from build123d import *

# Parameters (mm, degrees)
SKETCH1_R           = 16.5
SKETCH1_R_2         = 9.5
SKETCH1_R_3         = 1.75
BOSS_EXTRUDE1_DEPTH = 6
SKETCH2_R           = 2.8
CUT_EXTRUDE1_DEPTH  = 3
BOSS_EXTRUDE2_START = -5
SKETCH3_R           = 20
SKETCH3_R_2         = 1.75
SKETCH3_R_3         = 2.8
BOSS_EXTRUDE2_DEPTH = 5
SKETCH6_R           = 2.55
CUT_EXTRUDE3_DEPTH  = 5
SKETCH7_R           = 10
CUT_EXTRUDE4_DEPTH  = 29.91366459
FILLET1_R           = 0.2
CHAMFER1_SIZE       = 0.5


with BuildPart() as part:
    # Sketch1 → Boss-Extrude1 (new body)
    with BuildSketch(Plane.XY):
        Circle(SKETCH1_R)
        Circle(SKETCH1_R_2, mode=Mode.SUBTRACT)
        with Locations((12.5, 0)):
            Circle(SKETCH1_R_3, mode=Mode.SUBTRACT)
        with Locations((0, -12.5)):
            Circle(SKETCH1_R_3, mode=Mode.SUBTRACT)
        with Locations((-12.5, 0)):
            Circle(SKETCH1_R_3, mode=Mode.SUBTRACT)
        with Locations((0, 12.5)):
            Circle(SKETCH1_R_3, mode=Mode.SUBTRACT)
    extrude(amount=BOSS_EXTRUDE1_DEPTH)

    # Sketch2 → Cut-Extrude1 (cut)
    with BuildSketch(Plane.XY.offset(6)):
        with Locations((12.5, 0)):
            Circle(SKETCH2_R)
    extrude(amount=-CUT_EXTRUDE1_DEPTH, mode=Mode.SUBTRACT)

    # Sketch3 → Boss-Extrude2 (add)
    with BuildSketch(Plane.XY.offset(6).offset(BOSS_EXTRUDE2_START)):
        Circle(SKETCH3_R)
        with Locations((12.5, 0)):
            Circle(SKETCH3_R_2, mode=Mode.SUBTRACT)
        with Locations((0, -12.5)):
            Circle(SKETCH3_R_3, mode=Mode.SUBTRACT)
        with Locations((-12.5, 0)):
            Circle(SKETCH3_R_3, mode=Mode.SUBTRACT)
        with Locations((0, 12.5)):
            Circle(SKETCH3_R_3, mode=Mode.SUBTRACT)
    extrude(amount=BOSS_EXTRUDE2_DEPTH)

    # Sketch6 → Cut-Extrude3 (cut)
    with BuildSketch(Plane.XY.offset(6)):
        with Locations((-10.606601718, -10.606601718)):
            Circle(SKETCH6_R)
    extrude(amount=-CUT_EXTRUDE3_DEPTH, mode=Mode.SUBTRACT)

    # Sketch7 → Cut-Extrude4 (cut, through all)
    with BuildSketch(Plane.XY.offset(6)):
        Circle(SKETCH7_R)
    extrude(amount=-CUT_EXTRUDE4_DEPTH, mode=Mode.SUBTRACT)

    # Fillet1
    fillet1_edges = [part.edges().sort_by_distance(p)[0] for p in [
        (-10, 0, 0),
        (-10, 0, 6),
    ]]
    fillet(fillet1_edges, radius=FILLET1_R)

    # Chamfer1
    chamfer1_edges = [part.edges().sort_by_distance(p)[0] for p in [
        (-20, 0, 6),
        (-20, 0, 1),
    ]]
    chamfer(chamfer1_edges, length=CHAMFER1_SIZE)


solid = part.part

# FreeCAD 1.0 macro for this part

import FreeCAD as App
import Part
import Sketcher
from FreeCAD import Vector


def edges_at(feature, points):
    """Names of the edges that pass closest to the given points."""
    edges = feature.Shape.Edges
    near = lambda p: min(range(len(edges)), key=lambda i: edges[i].distToShape(Part.Vertex(*p))[0])
    return sorted({f"Edge{near(p) + 1}" for p in points})

doc = App.newDocument("Part")
params = doc.addObject("Spreadsheet::Sheet", "Params")
for row, (alias, value) in enumerate([
    ("sketch1_diameter", "33 mm"),
    ("sketch1_diameter2", "19 mm"),
    ("sketch1_diameter3", "3.5 mm"),
    ("pad1_length", "6 mm"),
    ("sketch2_diameter", "5.6 mm"),
    ("pocket1_length", "3 mm"),
    ("sketch3_diameter", "40 mm"),
    ("sketch3_diameter2", "5.6 mm"),
    ("sketch3_diameter3", "3.5 mm"),
    ("pad2_length", "5 mm"),
    ("sketch4_diameter", "5.1 mm"),
    ("pocket2_length", "5 mm"),
    ("sketch5_diameter", "20 mm"),
    ("fillet_radius", "0.2 mm"),
    ("chamfer_size", "0.5 mm"),
], start=1):
    params.set(f"A{row}", alias)
    params.set(f"B{row}", "=" + value)
    params.setAlias(f"B{row}", alias)

body = doc.addObject("PartDesign::Body", "Body")

# Sketch on XY plane
sketch1 = body.newObject("Sketcher::SketchObject", "Sketch")
sketch1.AttachmentSupport = (doc.getObject("XY_Plane"), [""])
sketch1.MapMode = "FlatFace"
sketch1.addGeometry(Part.Circle(Vector(0, 0, 0), Vector(0, 0, 1), 16.5), False)
sketch1.addGeometry(Part.Circle(Vector(0, -12.5, 0), Vector(0, 0, 1), 1.75), False)
sketch1.addGeometry(Part.Circle(Vector(-12.5, 0, 0), Vector(0, 0, 1), 1.75), False)
sketch1.addGeometry(Part.Circle(Vector(0, 0, 0), Vector(0, 0, 1), 9.5), False)
sketch1.addGeometry(Part.Circle(Vector(12.5, 0, 0), Vector(0, 0, 1), 1.75), False)
sketch1.addGeometry(Part.Circle(Vector(0, 12.5, 0), Vector(0, 0, 1), 1.75), False)
sketch1.addConstraint(Sketcher.Constraint("Coincident", 0, 3, -1, 1))
sketch1.addConstraint(Sketcher.Constraint("Coincident", 3, 3, -1, 1))
sketch1.addConstraint(Sketcher.Constraint("Equal", 1, 2))
sketch1.addConstraint(Sketcher.Constraint("Equal", 2, 4))
sketch1.addConstraint(Sketcher.Constraint("Equal", 4, 5))
sketch1.addConstraint(Sketcher.Constraint("Symmetric", 2, 3, 4, 3, -1, 1))
sketch1.addConstraint(Sketcher.Constraint("Symmetric", 1, 3, 5, 3, -1, 1))
sketch1.addConstraint(Sketcher.Constraint("PointOnObject", 1, 3, -2))
sketch1.addConstraint(Sketcher.Constraint("PointOnObject", 2, 3, -1))
sketch1.addConstraint(Sketcher.Constraint("Diameter", 0, 33.0))
sketch1.addConstraint(Sketcher.Constraint("Diameter", 3, 19.0))
sketch1.addConstraint(Sketcher.Constraint("Diameter", 1, 3.5))
sketch1.addConstraint(Sketcher.Constraint("DistanceX", 2, 3, 4, 3, 25.0))
sketch1.addConstraint(Sketcher.Constraint("DistanceY", 1, 3, 5, 3, 25.0))
sketch1.setExpression("Constraints[9]", "Params.sketch1_diameter")
sketch1.setExpression("Constraints[10]", "Params.sketch1_diameter2")
sketch1.setExpression("Constraints[11]", "Params.sketch1_diameter3")
pad1 = body.newObject("PartDesign::Pad", "Pad")
pad1.Profile = sketch1
pad1.setExpression("Length", "Params.pad1_length")

# Sketch on XY plane
sketch2 = body.newObject("Sketcher::SketchObject", "Sketch001")
sketch2.AttachmentSupport = (doc.getObject("XY_Plane"), [""])
sketch2.MapMode = "FlatFace"
sketch2.AttachmentOffset = App.Placement(Vector(0, 0, 6), App.Rotation())
sketch2.addGeometry(Part.Circle(Vector(12.5, 0, 0), Vector(0, 0, 1), 2.8), False)
sketch2.addConstraint(Sketcher.Constraint("PointOnObject", 0, 3, -1))
sketch2.addConstraint(Sketcher.Constraint("Diameter", 0, 5.6))
sketch2.addConstraint(Sketcher.Constraint("DistanceX", -1, 1, 0, 3, 12.5))
sketch2.setExpression("Constraints[1]", "Params.sketch2_diameter")
pocket1 = body.newObject("PartDesign::Pocket", "Pocket")
pocket1.Profile = sketch2
pocket1.setExpression("Length", "Params.pocket1_length")

# Sketch on XY plane
sketch3 = body.newObject("Sketcher::SketchObject", "Sketch002")
sketch3.AttachmentSupport = (doc.getObject("XY_Plane"), [""])
sketch3.MapMode = "FlatFace"
sketch3.AttachmentOffset = App.Placement(Vector(0, 0, 1), App.Rotation())
sketch3.addGeometry(Part.Circle(Vector(0, 0, 0), Vector(0, 0, 1), 20), False)
sketch3.addGeometry(Part.Circle(Vector(0, -12.5, 0), Vector(0, 0, 1), 2.8), False)
sketch3.addGeometry(Part.Circle(Vector(-12.5, 0, 0), Vector(0, 0, 1), 2.8), False)
sketch3.addGeometry(Part.Circle(Vector(12.5, 0, 0), Vector(0, 0, 1), 1.75), False)
sketch3.addGeometry(Part.Circle(Vector(0, 12.5, 0), Vector(0, 0, 1), 2.8), False)
sketch3.addConstraint(Sketcher.Constraint("Coincident", 0, 3, -1, 1))
sketch3.addConstraint(Sketcher.Constraint("Equal", 1, 2))
sketch3.addConstraint(Sketcher.Constraint("Equal", 2, 4))
sketch3.addConstraint(Sketcher.Constraint("Symmetric", 2, 3, 3, 3, -1, 1))
sketch3.addConstraint(Sketcher.Constraint("Symmetric", 1, 3, 4, 3, -1, 1))
sketch3.addConstraint(Sketcher.Constraint("PointOnObject", 1, 3, -2))
sketch3.addConstraint(Sketcher.Constraint("PointOnObject", 2, 3, -1))
sketch3.addConstraint(Sketcher.Constraint("Diameter", 0, 40.0))
sketch3.addConstraint(Sketcher.Constraint("Diameter", 1, 5.6))
sketch3.addConstraint(Sketcher.Constraint("Diameter", 3, 3.5))
sketch3.addConstraint(Sketcher.Constraint("DistanceX", 2, 3, 3, 3, 25.0))
sketch3.addConstraint(Sketcher.Constraint("DistanceY", 1, 3, 4, 3, 25.0))
sketch3.setExpression("Constraints[7]", "Params.sketch3_diameter")
sketch3.setExpression("Constraints[8]", "Params.sketch3_diameter2")
sketch3.setExpression("Constraints[9]", "Params.sketch3_diameter3")
pad2 = body.newObject("PartDesign::Pad", "Pad001")
pad2.Profile = sketch3
pad2.setExpression("Length", "Params.pad2_length")

# Sketch on XY plane
sketch4 = body.newObject("Sketcher::SketchObject", "Sketch003")
sketch4.AttachmentSupport = (doc.getObject("XY_Plane"), [""])
sketch4.MapMode = "FlatFace"
sketch4.AttachmentOffset = App.Placement(Vector(0, 0, 6), App.Rotation())
sketch4.addGeometry(Part.Circle(Vector(-10.606602, -10.606602, 0), Vector(0, 0, 1), 2.55), False)
sketch4.addConstraint(Sketcher.Constraint("Diameter", 0, 5.1))
sketch4.addConstraint(Sketcher.Constraint("DistanceX", 0, 3, -1, 1, 10.606602))
sketch4.addConstraint(Sketcher.Constraint("DistanceY", 0, 3, -1, 1, 10.606602))
sketch4.setExpression("Constraints[0]", "Params.sketch4_diameter")
pocket2 = body.newObject("PartDesign::Pocket", "Pocket001")
pocket2.Profile = sketch4
pocket2.setExpression("Length", "Params.pocket2_length")

# Sketch on XY plane
sketch5 = body.newObject("Sketcher::SketchObject", "Sketch004")
sketch5.AttachmentSupport = (doc.getObject("XY_Plane"), [""])
sketch5.MapMode = "FlatFace"
sketch5.AttachmentOffset = App.Placement(Vector(0, 0, 6), App.Rotation())
sketch5.addGeometry(Part.Circle(Vector(0, 0, 0), Vector(0, 0, 1), 10), False)
sketch5.addConstraint(Sketcher.Constraint("Coincident", 0, 3, -1, 1))
sketch5.addConstraint(Sketcher.Constraint("Diameter", 0, 20.0))
sketch5.setExpression("Constraints[1]", "Params.sketch5_diameter")
pocket3 = body.newObject("PartDesign::Pocket", "Pocket002")
pocket3.Profile = sketch5
pocket3.Type = "ThroughAll"
doc.recompute()

fillet = body.newObject("PartDesign::Fillet", "Fillet")
fillet.Base = (pocket3, edges_at(pocket3, [(-10, 0, 0), (-10, 0, 6)]))
fillet.setExpression("Radius", "Params.fillet_radius")
doc.recompute()

chamfer = body.newObject("PartDesign::Chamfer", "Chamfer")
chamfer.Base = (fillet, edges_at(fillet, [(-20, 0, 6), (-20, 0, 1)]))
chamfer.setExpression("Size", "Params.chamfer_size")

doc.recompute()
